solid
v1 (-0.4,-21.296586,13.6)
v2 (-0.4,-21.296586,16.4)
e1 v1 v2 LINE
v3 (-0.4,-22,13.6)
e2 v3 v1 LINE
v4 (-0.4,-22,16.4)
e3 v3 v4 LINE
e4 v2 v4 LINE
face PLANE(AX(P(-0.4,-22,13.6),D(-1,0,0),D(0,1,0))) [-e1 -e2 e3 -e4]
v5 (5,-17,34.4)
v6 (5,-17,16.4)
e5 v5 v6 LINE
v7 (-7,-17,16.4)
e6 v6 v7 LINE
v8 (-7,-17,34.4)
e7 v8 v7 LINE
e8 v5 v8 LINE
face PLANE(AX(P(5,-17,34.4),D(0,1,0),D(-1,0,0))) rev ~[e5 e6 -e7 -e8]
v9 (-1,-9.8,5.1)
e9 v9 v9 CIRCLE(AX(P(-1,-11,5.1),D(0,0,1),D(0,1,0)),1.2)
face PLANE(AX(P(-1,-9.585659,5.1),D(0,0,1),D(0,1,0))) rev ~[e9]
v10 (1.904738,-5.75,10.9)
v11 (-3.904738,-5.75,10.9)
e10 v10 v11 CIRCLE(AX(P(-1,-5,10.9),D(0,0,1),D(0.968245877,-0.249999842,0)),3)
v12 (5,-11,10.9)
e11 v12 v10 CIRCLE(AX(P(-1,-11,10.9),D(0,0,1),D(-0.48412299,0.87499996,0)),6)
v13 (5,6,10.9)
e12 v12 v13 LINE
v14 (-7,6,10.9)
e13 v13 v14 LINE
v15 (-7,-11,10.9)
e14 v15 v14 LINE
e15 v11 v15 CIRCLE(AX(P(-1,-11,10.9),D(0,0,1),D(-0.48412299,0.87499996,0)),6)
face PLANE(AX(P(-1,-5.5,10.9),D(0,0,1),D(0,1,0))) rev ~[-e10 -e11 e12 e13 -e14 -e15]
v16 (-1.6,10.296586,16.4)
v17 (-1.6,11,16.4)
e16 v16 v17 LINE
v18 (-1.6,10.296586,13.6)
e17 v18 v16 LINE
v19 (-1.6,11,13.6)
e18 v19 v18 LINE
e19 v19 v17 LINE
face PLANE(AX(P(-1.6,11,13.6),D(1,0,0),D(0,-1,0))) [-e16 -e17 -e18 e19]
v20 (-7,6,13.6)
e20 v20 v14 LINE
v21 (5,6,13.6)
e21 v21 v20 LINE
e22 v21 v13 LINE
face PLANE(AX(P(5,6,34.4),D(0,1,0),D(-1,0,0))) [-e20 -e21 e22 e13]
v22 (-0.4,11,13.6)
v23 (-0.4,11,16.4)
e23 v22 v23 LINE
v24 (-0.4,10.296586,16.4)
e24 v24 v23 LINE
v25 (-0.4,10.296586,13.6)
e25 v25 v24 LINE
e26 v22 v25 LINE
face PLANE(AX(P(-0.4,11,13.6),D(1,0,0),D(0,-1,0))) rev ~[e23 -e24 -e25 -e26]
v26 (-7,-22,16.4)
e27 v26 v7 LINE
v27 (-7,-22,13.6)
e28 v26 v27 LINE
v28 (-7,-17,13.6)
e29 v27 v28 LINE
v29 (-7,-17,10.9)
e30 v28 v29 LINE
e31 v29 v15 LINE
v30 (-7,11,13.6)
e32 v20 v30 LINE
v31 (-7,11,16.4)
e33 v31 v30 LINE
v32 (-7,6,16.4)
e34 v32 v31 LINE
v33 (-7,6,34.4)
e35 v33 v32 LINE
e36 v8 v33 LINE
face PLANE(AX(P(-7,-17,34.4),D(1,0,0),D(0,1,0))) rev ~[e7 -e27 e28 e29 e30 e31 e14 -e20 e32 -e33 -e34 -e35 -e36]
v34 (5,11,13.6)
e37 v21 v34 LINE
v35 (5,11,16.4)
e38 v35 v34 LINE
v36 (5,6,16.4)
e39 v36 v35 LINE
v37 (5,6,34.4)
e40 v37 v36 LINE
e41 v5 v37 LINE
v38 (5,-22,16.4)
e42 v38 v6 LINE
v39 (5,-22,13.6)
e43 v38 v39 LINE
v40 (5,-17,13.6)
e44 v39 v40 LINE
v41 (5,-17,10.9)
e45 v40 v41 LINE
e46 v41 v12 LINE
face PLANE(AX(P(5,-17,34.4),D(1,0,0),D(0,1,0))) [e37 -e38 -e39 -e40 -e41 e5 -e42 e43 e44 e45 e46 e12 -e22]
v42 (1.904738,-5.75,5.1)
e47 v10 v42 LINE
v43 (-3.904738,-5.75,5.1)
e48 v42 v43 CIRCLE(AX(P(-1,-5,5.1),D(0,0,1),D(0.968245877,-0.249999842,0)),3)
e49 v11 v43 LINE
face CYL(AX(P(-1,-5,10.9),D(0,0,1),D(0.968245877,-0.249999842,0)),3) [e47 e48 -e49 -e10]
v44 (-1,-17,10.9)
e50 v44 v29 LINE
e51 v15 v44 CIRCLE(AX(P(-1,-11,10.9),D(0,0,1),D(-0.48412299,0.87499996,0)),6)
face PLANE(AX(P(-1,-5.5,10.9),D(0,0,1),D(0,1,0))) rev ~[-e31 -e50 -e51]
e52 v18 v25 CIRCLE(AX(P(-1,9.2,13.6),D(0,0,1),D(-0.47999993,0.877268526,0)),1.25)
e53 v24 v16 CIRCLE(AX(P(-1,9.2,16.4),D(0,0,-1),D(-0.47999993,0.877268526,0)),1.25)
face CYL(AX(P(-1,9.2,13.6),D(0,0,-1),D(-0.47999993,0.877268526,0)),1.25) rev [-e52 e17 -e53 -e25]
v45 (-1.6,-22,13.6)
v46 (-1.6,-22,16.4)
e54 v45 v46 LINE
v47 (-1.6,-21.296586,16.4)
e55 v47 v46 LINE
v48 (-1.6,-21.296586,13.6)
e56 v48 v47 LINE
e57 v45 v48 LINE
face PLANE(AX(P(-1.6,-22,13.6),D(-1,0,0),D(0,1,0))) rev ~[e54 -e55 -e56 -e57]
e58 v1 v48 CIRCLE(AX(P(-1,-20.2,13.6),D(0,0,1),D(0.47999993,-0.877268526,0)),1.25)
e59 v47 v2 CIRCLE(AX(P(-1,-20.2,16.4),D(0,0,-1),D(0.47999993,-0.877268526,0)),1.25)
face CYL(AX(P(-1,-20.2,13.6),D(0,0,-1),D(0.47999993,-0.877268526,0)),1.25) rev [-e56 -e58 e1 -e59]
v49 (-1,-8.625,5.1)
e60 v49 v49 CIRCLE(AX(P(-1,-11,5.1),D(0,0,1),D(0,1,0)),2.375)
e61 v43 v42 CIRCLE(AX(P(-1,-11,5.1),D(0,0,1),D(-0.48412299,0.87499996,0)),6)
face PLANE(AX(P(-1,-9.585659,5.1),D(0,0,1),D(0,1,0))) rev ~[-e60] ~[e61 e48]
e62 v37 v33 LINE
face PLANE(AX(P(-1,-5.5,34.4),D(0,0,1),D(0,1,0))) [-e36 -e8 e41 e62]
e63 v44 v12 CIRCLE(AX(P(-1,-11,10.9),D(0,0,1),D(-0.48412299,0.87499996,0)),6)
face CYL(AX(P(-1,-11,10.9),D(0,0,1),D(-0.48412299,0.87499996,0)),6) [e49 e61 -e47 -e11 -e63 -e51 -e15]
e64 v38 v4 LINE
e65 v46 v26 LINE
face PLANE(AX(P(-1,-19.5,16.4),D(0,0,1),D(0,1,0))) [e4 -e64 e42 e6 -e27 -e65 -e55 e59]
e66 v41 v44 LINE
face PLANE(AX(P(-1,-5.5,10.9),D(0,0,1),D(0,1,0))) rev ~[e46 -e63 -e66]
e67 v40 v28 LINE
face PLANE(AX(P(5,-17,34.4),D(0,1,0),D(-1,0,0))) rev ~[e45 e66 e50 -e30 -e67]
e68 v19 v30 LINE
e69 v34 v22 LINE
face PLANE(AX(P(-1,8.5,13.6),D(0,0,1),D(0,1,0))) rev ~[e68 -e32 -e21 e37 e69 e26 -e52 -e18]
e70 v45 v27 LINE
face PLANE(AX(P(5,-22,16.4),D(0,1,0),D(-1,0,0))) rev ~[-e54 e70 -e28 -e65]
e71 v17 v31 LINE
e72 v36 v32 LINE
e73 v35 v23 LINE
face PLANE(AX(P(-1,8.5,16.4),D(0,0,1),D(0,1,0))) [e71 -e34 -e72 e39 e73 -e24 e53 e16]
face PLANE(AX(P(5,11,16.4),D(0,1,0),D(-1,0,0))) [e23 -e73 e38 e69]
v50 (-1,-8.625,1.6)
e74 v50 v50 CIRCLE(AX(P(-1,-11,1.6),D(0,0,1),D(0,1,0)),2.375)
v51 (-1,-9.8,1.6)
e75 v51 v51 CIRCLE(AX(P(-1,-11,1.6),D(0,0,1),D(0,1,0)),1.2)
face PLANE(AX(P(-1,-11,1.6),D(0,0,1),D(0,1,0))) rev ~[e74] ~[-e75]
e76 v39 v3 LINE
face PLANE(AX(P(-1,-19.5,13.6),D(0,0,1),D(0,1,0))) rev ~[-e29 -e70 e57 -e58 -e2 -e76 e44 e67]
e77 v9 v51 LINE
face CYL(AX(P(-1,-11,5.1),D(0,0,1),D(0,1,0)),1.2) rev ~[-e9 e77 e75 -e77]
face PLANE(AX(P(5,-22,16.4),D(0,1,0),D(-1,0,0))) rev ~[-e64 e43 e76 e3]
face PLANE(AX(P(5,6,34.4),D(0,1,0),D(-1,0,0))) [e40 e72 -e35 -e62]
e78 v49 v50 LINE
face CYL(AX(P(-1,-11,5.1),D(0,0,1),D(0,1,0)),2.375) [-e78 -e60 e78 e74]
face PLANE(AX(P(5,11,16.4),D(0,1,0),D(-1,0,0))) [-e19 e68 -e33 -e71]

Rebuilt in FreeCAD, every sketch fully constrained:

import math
import FreeCAD as App
import Part
import Sketcher

V = App.Vector

doc = App.newDocument("Part")
params = doc.addObject("Spreadsheet::Sheet", "Params")
for row, (alias, value) in enumerate([
    ("sketch1_width", "23 mm"),
    ("sketch1_height", "12 mm"),
    ("pad1_length", "23.5 mm"),
    ("sketch2_width", "5 mm"),
    ("sketch2_height", "12 mm"),
    ("pad2_length", "2.8 mm"),
    ("sketch3_radius", "1.25 mm"),
    ("sketch3_height", "1.2 mm"),
    ("pocket1_length", "5 mm"),
    ("sketch4_radius", "6 mm"),
    ("sketch4_radius2", "3 mm"),
    ("pad3_length", "5.8 mm"),
    ("sketch5_diameter", "2.4 mm"),
    ("sketch5_diameter2", "4.75 mm"),
    ("pad4_length", "3.5 mm"),
], start=1):
    params.set(f"A{row}", alias)
    params.set(f"B{row}", "=" + value)
    params.setAlias(f"B{row}", alias)

body = doc.addObject("PartDesign::Body", "Body")

# Sketch on XZ plane
sketch1 = body.newObject("Sketcher::SketchObject", "Sketch")
sketch1.AttachmentSupport = (doc.getObject("XZ_Plane"), [""])
sketch1.MapMode = "FlatFace"
sketch1.addGeometry(Part.LineSegment(V(0, 12, 0), V(0, 0, 0)), False)
sketch1.addGeometry(Part.LineSegment(V(0, 0, 0), V(23, 0, 0)), False)
sketch1.addGeometry(Part.LineSegment(V(23, 0, 0), V(23, 12, 0)), False)
sketch1.addGeometry(Part.LineSegment(V(23, 12, 0), V(0, 12, 0)), False)
sketch1.addConstraint(Sketcher.Constraint("Coincident", 0, 2, 1, 1))
sketch1.addConstraint(Sketcher.Constraint("Coincident", 1, 2, 2, 1))
sketch1.addConstraint(Sketcher.Constraint("Coincident", 2, 2, 3, 1))
sketch1.addConstraint(Sketcher.Constraint("Coincident", 3, 2, 0, 1))
sketch1.addConstraint(Sketcher.Constraint("Vertical", 0))
sketch1.addConstraint(Sketcher.Constraint("Horizontal", 1))
sketch1.addConstraint(Sketcher.Constraint("Vertical", 2))
sketch1.addConstraint(Sketcher.Constraint("Horizontal", 3))
sketch1.addConstraint(Sketcher.Constraint("Coincident", 0, 2, -1, 1))
sketch1.addConstraint(Sketcher.Constraint("DistanceX", 1, 1, 1, 2, 23.0))
sketch1.addConstraint(Sketcher.Constraint("DistanceY", 0, 2, 0, 1, 12.0))
sketch1.setExpression("Constraints[9]", "Params.sketch1_width")
sketch1.setExpression("Constraints[10]", "Params.sketch1_height")
pad1 = body.newObject("PartDesign::Pad", "Pad")
pad1.Profile = sketch1
pad1.setExpression("Length", "Params.pad1_length")
pad1.Reversed = True

# Sketch on XZ plane
sketch2 = body.newObject("Sketcher::SketchObject", "Sketch001")
sketch2.AttachmentSupport = (doc.getObject("XZ_Plane"), [""])
sketch2.MapMode = "FlatFace"
sketch2.AttachmentOffset = App.Placement(V(0, 0, -18), App.Rotation())
sketch2.addGeometry(Part.LineSegment(V(-5, 12, 0), V(-5, 0, 0)), False)
sketch2.addGeometry(Part.LineSegment(V(-5, 0, 0), V(0, 0, 0)), False)
sketch2.addGeometry(Part.LineSegment(V(0, 0, 0), V(0, 12, 0)), False)
sketch2.addGeometry(Part.LineSegment(V(0, 12, 0), V(-5, 12, 0)), False)
sketch2.addGeometry(Part.LineSegment(V(23, 12, 0), V(23, 0, 0)), False)
sketch2.addGeometry(Part.LineSegment(V(23, 0, 0), V(28, 0, 0)), False)
sketch2.addGeometry(Part.LineSegment(V(28, 0, 0), V(28, 12, 0)), False)
sketch2.addGeometry(Part.LineSegment(V(28, 12, 0), V(23, 12, 0)), False)
sketch2.addConstraint(Sketcher.Constraint("Coincident", 0, 2, 1, 1))
sketch2.addConstraint(Sketcher.Constraint("Coincident", 1, 2, 2, 1))
sketch2.addConstraint(Sketcher.Constraint("Coincident", 2, 2, 3, 1))
sketch2.addConstraint(Sketcher.Constraint("Coincident", 3, 2, 0, 1))
sketch2.addConstraint(Sketcher.Constraint("Coincident", 4, 2, 5, 1))
sketch2.addConstraint(Sketcher.Constraint("Coincident", 5, 2, 6, 1))
sketch2.addConstraint(Sketcher.Constraint("Coincident", 6, 2, 7, 1))
sketch2.addConstraint(Sketcher.Constraint("Coincident", 7, 2, 4, 1))
sketch2.addConstraint(Sketcher.Constraint("Vertical", 0))
sketch2.addConstraint(Sketcher.Constraint("Horizontal", 1))
sketch2.addConstraint(Sketcher.Constraint("Vertical", 2))
sketch2.addConstraint(Sketcher.Constraint("Horizontal", 3))
sketch2.addConstraint(Sketcher.Constraint("Vertical", 4))
sketch2.addConstraint(Sketcher.Constraint("Horizontal", 5))
sketch2.addConstraint(Sketcher.Constraint("Vertical", 6))
sketch2.addConstraint(Sketcher.Constraint("Horizontal", 7))
sketch2.addConstraint(Sketcher.Constraint("Coincident", 1, 2, -1, 1))
sketch2.addConstraint(Sketcher.Constraint("PointOnObject", 4, 2, -1))
sketch2.addConstraint(Sketcher.Constraint("Horizontal", 3, 2, 6, 2))
sketch2.addConstraint(Sketcher.Constraint("Equal", 3, 5))
sketch2.addConstraint(Sketcher.Constraint("DistanceX", 1, 1, 1, 2, 5.0))
sketch2.addConstraint(Sketcher.Constraint("DistanceY", 0, 2, 0, 1, 12.0))
sketch2.addConstraint(Sketcher.Constraint("DistanceX", -1, 1, 4, 2, 23.0))
sketch2.setExpression("Constraints[20]", "Params.sketch2_width")
sketch2.setExpression("Constraints[21]", "Params.sketch2_height")
pad2 = body.newObject("PartDesign::Pad", "Pad001")
pad2.Profile = sketch2
pad2.setExpression("Length", "Params.pad2_length")
pad2.Reversed = True

# Sketch on XZ plane
sketch3 = body.newObject("Sketcher::SketchObject", "Sketch002")
sketch3.AttachmentSupport = (doc.getObject("XZ_Plane"), [""])
sketch3.MapMode = "FlatFace"
sketch3.AttachmentOffset = App.Placement(V(0, 0, -20.8), App.Rotation())
sketch3.addGeometry(Part.ArcOfCircle(Part.Circle(V(-3.2, 6, 0), V(0, 0, 1), 1.3), math.radians(-151), math.radians(151)), False)
sketch3.addGeometry(Part.LineSegment(V(-4.3, 6.6, 0), V(-5, 6.6, 0)), False)
sketch3.addGeometry(Part.LineSegment(V(-5, 6.6, 0), V(-5, 5.4, 0)), False)
sketch3.addGeometry(Part.LineSegment(V(-5, 5.4, 0), V(-4.3, 5.4, 0)), False)
sketch3.addGeometry(Part.ArcOfCircle(Part.Circle(V(26.2, 6, 0), V(0, 0, 1), 1.3), math.radians(29), math.radians(331)), False)
sketch3.addGeometry(Part.LineSegment(V(27.3, 5.4, 0), V(28, 5.4, 0)), False)
sketch3.addGeometry(Part.LineSegment(V(28, 5.4, 0), V(28, 6.6, 0)), False)
sketch3.addGeometry(Part.LineSegment(V(28, 6.6, 0), V(27.3, 6.6, 0)), False)
sketch3.addConstraint(Sketcher.Constraint("Coincident", 0, 2, 1, 1))
sketch3.addConstraint(Sketcher.Constraint("Coincident", 1, 2, 2, 1))
sketch3.addConstraint(Sketcher.Constraint("Coincident", 2, 2, 3, 1))
sketch3.addConstraint(Sketcher.Constraint("Coincident", 3, 2, 0, 1))
sketch3.addConstraint(Sketcher.Constraint("Coincident", 4, 2, 5, 1))
sketch3.addConstraint(Sketcher.Constraint("Coincident", 5, 2, 6, 1))
sketch3.addConstraint(Sketcher.Constraint("Coincident", 6, 2, 7, 1))
sketch3.addConstraint(Sketcher.Constraint("Coincident", 7, 2, 4, 1))
sketch3.addConstraint(Sketcher.Constraint("Horizontal", 1))
sketch3.addConstraint(Sketcher.Constraint("Vertical", 2))
sketch3.addConstraint(Sketcher.Constraint("Horizontal", 3))
sketch3.addConstraint(Sketcher.Constraint("Horizontal", 5))
sketch3.addConstraint(Sketcher.Constraint("Vertical", 6))
sketch3.addConstraint(Sketcher.Constraint("Horizontal", 7))
sketch3.addConstraint(Sketcher.Constraint("Equal", 0, 4))
sketch3.addConstraint(Sketcher.Constraint("Horizontal", 0, 3, 4, 3))
sketch3.addConstraint(Sketcher.Constraint("Horizontal", 3, 2, 4, 2))
sketch3.addConstraint(Sketcher.Constraint("Horizontal", 1, 2, 6, 2))
sketch3.addConstraint(Sketcher.Constraint("Vertical", 0, 2, 3, 2))
sketch3.addConstraint(Sketcher.Constraint("Equal", 3, 5))
sketch3.addConstraint(Sketcher.Constraint("Radius", 0, 1.25))
sketch3.addConstraint(Sketcher.Constraint("DistanceY", 2, 2, 2, 1, 1.2))
sketch3.addConstraint(Sketcher.Constraint("DistanceY", -1, 1, 0, 3, 6.0))
sketch3.addConstraint(Sketcher.Constraint("DistanceX", 1, 2, -1, 1, 5.0))
sketch3.addConstraint(Sketcher.Constraint("DistanceX", -1, 1, 5, 2, 28.0))
sketch3.addConstraint(Sketcher.Constraint("DistanceX", 0, 3, -1, 1, 3.2))
sketch3.setExpression("Constraints[20]", "Params.sketch3_radius")
sketch3.setExpression("Constraints[21]", "Params.sketch3_height")
pocket1 = body.newObject("PartDesign::Pocket", "Pocket")
pocket1.Profile = sketch3
pocket1.setExpression("Length", "Params.pocket1_length")
pocket1.Reversed = True

# Sketch on XZ plane
sketch4 = body.newObject("Sketcher::SketchObject", "Sketch003")
sketch4.AttachmentSupport = (doc.getObject("XZ_Plane"), [""])
sketch4.MapMode = "FlatFace"
sketch4.AttachmentOffset = App.Placement(V(0, 0, -23.5), App.Rotation())
sketch4.addGeometry(Part.ArcOfCircle(Part.Circle(V(6, 6, 0), V(0, 0, 1), 6), math.radians(29), math.radians(331)), False)
sketch4.addGeometry(Part.ArcOfCircle(Part.Circle(V(12, 6, 0), V(0, 0, 1), 3), math.radians(-104), math.radians(104)), False)
sketch4.addConstraint(Sketcher.Constraint("Coincident", 0, 1, 1, 2))
sketch4.addConstraint(Sketcher.Constraint("Coincident", 1, 1, 0, 2))
sketch4.addConstraint(Sketcher.Constraint("Horizontal", 0, 3, 1, 3))
sketch4.addConstraint(Sketcher.Constraint("Radius", 0, 6.0))
sketch4.addConstraint(Sketcher.Constraint("Radius", 1, 3.0))
sketch4.addConstraint(Sketcher.Constraint("DistanceX", -1, 1, 0, 3, 6.0))
sketch4.addConstraint(Sketcher.Constraint("DistanceY", -1, 1, 0, 3, 6.0))
sketch4.addConstraint(Sketcher.Constraint("DistanceX", -1, 1, 1, 3, 12.0))
sketch4.setExpression("Constraints[3]", "Params.sketch4_radius")
sketch4.setExpression("Constraints[4]", "Params.sketch4_radius2")
pad3 = body.newObject("PartDesign::Pad", "Pad002")
pad3.Profile = sketch4
pad3.setExpression("Length", "Params.pad3_length")
pad3.Reversed = True

# Sketch on XZ plane
sketch5 = body.newObject("Sketcher::SketchObject", "Sketch004")
sketch5.AttachmentSupport = (doc.getObject("XZ_Plane"), [""])
sketch5.MapMode = "FlatFace"
sketch5.AttachmentOffset = App.Placement(V(0, 0, -29.3), App.Rotation())
sketch5.addGeometry(Part.Circle(V(6, 6, 0), V(0, 0, 1), 2.4), False)
sketch5.addGeometry(Part.Circle(V(6, 6, 0), V(0, 0, 1), 1.2), False)
sketch5.addConstraint(Sketcher.Constraint("Coincident", 1, 3, 0, 3))
sketch5.addConstraint(Sketcher.Constraint("Diameter", 1, 2.4))
sketch5.addConstraint(Sketcher.Constraint("Diameter", 0, 4.75))
sketch5.addConstraint(Sketcher.Constraint("DistanceX", -1, 1, 0, 3, 6.0))
sketch5.addConstraint(Sketcher.Constraint("DistanceY", -1, 1, 0, 3, 6.0))
sketch5.setExpression("Constraints[1]", "Params.sketch5_diameter")
sketch5.setExpression("Constraints[2]", "Params.sketch5_diameter2")
pad4 = body.newObject("PartDesign::Pad", "Pad003")
pad4.Profile = sketch5
pad4.setExpression("Length", "Params.pad4_length")
pad4.Reversed = True
body2 = doc.addObject("PartDesign::Body", "Body001")
doc.recompute()

body.Placement = App.Placement(V(0, 0, 0), App.Rotation(V(1, 0, 0), 270))
boolean = body2.newObject("PartDesign::Boolean", "Boolean")
boolean.Type = "Fuse"
boolean.addObjects([body])
body3 = doc.addObject("PartDesign::Body", "Body002")
doc.recompute()

body2.Placement = App.Placement(V(5, -17, 34.4), App.Rotation(V(0, 0, 1), 90))
boolean2 = body3.newObject("PartDesign::Boolean", "Boolean001")
boolean2.Type = "Fuse"
boolean2.addObjects([body2])

doc.recompute()
